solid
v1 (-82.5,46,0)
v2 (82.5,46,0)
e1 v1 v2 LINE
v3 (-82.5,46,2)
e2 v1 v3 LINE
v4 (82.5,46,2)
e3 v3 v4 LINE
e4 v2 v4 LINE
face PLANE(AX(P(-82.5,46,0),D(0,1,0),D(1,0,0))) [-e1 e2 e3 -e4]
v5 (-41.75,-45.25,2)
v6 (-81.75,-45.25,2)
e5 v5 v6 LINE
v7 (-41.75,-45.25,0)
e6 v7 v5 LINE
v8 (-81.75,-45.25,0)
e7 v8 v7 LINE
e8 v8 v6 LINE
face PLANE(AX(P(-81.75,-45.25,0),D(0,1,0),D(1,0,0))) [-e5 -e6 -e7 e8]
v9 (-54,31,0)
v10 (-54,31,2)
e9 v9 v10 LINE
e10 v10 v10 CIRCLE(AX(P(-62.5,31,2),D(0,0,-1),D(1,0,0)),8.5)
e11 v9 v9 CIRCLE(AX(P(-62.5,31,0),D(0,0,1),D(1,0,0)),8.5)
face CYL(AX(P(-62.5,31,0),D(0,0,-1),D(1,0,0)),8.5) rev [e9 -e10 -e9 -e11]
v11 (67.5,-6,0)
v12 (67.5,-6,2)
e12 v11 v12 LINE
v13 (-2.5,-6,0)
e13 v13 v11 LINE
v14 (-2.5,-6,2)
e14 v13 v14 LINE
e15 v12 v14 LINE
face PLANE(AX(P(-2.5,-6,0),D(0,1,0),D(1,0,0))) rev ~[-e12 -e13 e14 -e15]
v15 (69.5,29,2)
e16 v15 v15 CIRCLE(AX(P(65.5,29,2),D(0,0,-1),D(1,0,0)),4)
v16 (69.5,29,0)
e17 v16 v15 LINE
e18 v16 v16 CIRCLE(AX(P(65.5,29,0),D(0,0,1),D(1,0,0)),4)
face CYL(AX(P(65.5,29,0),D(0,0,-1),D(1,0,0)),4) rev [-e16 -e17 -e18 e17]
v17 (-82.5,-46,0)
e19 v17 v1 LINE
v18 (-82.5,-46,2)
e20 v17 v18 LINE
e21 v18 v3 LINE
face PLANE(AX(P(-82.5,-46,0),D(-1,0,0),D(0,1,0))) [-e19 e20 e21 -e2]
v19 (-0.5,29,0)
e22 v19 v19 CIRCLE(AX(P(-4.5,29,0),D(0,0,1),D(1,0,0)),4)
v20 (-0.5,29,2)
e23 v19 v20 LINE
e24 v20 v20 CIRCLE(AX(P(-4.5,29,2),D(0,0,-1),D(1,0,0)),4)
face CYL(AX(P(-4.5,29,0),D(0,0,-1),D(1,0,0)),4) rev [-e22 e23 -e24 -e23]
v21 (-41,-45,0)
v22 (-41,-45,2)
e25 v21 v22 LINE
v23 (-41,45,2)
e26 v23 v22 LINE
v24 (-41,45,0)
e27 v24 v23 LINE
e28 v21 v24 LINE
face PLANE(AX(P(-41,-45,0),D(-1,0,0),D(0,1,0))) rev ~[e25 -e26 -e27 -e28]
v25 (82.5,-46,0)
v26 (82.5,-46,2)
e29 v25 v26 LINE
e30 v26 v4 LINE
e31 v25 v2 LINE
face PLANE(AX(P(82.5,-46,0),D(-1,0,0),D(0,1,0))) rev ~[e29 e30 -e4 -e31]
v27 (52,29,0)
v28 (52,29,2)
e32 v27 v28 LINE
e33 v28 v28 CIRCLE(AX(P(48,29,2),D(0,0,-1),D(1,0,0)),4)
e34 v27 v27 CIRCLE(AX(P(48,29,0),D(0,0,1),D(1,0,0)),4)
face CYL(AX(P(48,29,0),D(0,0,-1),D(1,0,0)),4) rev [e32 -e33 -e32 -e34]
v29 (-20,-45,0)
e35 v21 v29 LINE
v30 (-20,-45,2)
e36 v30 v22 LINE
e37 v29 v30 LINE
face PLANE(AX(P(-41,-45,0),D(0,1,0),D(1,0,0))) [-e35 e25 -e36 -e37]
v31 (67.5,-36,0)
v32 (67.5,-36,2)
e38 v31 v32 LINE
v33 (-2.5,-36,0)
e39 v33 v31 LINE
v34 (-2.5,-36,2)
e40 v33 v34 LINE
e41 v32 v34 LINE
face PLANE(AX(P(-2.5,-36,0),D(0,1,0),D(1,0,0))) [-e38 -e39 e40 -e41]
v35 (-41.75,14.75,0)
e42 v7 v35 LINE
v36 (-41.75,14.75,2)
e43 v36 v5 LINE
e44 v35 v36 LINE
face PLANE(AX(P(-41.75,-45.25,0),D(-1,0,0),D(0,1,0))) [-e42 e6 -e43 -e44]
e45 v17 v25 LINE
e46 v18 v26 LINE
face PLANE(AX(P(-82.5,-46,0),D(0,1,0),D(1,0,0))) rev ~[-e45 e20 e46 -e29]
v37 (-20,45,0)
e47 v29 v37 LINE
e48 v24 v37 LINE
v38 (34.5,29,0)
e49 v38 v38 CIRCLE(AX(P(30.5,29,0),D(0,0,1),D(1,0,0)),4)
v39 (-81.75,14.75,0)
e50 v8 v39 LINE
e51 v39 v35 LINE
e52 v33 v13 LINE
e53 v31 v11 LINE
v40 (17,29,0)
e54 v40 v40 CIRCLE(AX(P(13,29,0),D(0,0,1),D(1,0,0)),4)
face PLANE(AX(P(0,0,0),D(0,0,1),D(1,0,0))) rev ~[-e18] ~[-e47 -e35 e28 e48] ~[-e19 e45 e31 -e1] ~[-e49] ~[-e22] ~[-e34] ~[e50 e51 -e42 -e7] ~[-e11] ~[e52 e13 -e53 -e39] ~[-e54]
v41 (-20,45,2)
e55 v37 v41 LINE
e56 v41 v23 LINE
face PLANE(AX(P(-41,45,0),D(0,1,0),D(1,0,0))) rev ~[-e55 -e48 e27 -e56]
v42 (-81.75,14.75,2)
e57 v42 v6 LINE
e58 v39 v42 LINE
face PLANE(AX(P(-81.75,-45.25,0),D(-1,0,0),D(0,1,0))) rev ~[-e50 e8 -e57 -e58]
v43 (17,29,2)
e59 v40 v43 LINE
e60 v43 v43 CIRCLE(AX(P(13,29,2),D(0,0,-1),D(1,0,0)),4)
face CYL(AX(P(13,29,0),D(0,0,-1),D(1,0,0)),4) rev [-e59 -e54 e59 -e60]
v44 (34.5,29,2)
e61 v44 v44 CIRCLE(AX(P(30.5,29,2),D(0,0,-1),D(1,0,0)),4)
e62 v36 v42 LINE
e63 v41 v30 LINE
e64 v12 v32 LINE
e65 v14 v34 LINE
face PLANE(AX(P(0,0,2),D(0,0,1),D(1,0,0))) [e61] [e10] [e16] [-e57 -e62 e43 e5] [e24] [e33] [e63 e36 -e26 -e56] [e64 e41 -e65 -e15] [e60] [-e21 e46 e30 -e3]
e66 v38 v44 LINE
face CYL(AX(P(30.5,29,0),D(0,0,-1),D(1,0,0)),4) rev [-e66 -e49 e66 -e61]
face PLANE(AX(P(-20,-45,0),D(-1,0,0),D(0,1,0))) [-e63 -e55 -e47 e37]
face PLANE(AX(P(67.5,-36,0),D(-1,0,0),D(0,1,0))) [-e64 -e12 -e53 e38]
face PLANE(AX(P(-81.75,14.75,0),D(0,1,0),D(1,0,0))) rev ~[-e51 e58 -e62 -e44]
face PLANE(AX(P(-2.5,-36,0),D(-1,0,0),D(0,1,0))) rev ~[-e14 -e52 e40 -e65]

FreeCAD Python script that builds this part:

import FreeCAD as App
import Part
import Sketcher
Q = App.Units.Quantity

doc = App.newDocument("Part")
body = doc.addObject("PartDesign::Body", "Body")

sketch1 = body.newObject("Sketcher::SketchObject", "Sketch")
sketch1.AttachmentSupport = (doc.getObject("XY_Plane"), [""])
sketch1.MapMode = "FlatFace"
sketch1.addGeometry(Part.LineSegment(App.Vector(-82, 46, 0), App.Vector(-82, -46, 0)), False)
sketch1.addGeometry(Part.LineSegment(App.Vector(-82, -46, 0), App.Vector(82, -46, 0)), False)
sketch1.addGeometry(Part.LineSegment(App.Vector(82, -46, 0), App.Vector(82, 46, 0)), False)
sketch1.addGeometry(Part.LineSegment(App.Vector(82, 46, 0), App.Vector(-82, 46, 0)), False)
sketch1.addConstraint(Sketcher.Constraint("Coincident", 0, 2, 1, 1))
sketch1.addConstraint(Sketcher.Constraint("Coincident", 1, 2, 2, 1))
sketch1.addConstraint(Sketcher.Constraint("Coincident", 2, 2, 3, 1))
sketch1.addConstraint(Sketcher.Constraint("Coincident", 3, 2, 0, 1))
sketch1.addConstraint(Sketcher.Constraint("Vertical", 0))
sketch1.addConstraint(Sketcher.Constraint("Horizontal", 1))
sketch1.addConstraint(Sketcher.Constraint("Vertical", 2))
sketch1.addConstraint(Sketcher.Constraint("Horizontal", 3))
sketch1.addConstraint(Sketcher.Constraint("Symmetric", 0, 2, 2, 2, -1, 1))
sketch1.addConstraint(Sketcher.Constraint("DistanceX", 1, 1, 1, 2, Q("165 mm")))
sketch1.addConstraint(Sketcher.Constraint("DistanceY", 0, 2, 0, 1, Q("92 mm")))
pad1 = body.newObject("PartDesign::Pad", "Pad")
pad1.Profile = sketch1
pad1.Length = 2

sketch2 = body.newObject("Sketcher::SketchObject", "Sketch001")
sketch2.AttachmentSupport = (doc.getObject("XY_Plane"), [""])
sketch2.MapMode = "FlatFace"
sketch2.addGeometry(Part.LineSegment(App.Vector(-41, 45, 0), App.Vector(-41, -45, 0)), False)
sketch2.addGeometry(Part.LineSegment(App.Vector(-41, -45, 0), App.Vector(-20, -45, 0)), False)
sketch2.addGeometry(Part.LineSegment(App.Vector(-20, -45, 0), App.Vector(-20, 45, 0)), False)
sketch2.addGeometry(Part.LineSegment(App.Vector(-20, 45, 0), App.Vector(-41, 45, 0)), False)
sketch2.addConstraint(Sketcher.Constraint("Coincident", 0, 2, 1, 1))
sketch2.addConstraint(Sketcher.Constraint("Coincident", 1, 2, 2, 1))
sketch2.addConstraint(Sketcher.Constraint("Coincident", 2, 2, 3, 1))
sketch2.addConstraint(Sketcher.Constraint("Coincident", 3, 2, 0, 1))
sketch2.addConstraint(Sketcher.Constraint("Vertical", 0))
sketch2.addConstraint(Sketcher.Constraint("Horizontal", 1))
sketch2.addConstraint(Sketcher.Constraint("Vertical", 2))
sketch2.addConstraint(Sketcher.Constraint("Horizontal", 3))
sketch2.addConstraint(Sketcher.Constraint("DistanceX", 1, 1, 1, 2, Q("21 mm")))
sketch2.addConstraint(Sketcher.Constraint("DistanceY", 0, 2, 0, 1, Q("90 mm")))
sketch2.addConstraint(Sketcher.Constraint("DistanceX", 0, 2, -1, 1, Q("41 mm")))
sketch2.addConstraint(Sketcher.Constraint("DistanceY", 0, 2, -1, 1, Q("45 mm")))
pocket1 = body.newObject("PartDesign::Pocket", "Pocket")
pocket1.Profile = sketch2
pocket1.Length = 5
pocket1.Reversed = True

sketch3 = body.newObject("Sketcher::SketchObject", "Sketch002")
sketch3.AttachmentSupport = (doc.getObject("XY_Plane"), [""])
sketch3.MapMode = "FlatFace"
sketch3.addGeometry(Part.Circle(App.Vector(-4.5, 29, 0), App.Vector(0, 0, 1), 4), False)
sketch3.addGeometry(Part.Circle(App.Vector(13, 29, 0), App.Vector(0, 0, 1), 4), False)
sketch3.addGeometry(Part.Circle(App.Vector(30.5, 29, 0), App.Vector(0, 0, 1), 4), False)
sketch3.addGeometry(Part.Circle(App.Vector(48, 29, 0), App.Vector(0, 0, 1), 4), False)
sketch3.addGeometry(Part.Circle(App.Vector(65.5, 29, 0), App.Vector(0, 0, 1), 4), False)
sketch3.addConstraint(Sketcher.Constraint("Equal", 0, 1))
sketch3.addConstraint(Sketcher.Constraint("Equal", 1, 2))
sketch3.addConstraint(Sketcher.Constraint("Equal", 2, 3))
sketch3.addConstraint(Sketcher.Constraint("Equal", 3, 4))
sketch3.addConstraint(Sketcher.Constraint("Horizontal", 0, 3, 1, 3))
sketch3.addConstraint(Sketcher.Constraint("Horizontal", 1, 3, 2, 3))
sketch3.addConstraint(Sketcher.Constraint("Horizontal", 2, 3, 3, 3))
sketch3.addConstraint(Sketcher.Constraint("Horizontal", 3, 3, 4, 3))
sketch3.addConstraint(Sketcher.Constraint("Diameter", 0, Q("8 mm")))
sketch3.addConstraint(Sketcher.Constraint("DistanceY", -1, 1, 0, 3, Q("29 mm")))
sketch3.addConstraint(Sketcher.Constraint("DistanceX", -1, 1, 1, 3, Q("13 mm")))
sketch3.addConstraint(Sketcher.Constraint("DistanceX", -1, 1, 3, 3, Q("48 mm")))
sketch3.addConstraint(Sketcher.Constraint("DistanceX", 0, 3, 2, 3, Q("35 mm")))
sketch3.addConstraint(Sketcher.Constraint("DistanceX", 2, 3, 4, 3, Q("35 mm")))
sketch3.addConstraint(Sketcher.Constraint("DistanceX", 0, 3, -1, 1, Q("4.5 mm")))
pocket2 = body.newObject("PartDesign::Pocket", "Pocket001")
pocket2.Profile = sketch3
pocket2.Length = 5
pocket2.Reversed = True

sketch4 = body.newObject("Sketcher::SketchObject", "Sketch003")
sketch4.AttachmentSupport = (doc.getObject("XY_Plane"), [""])
sketch4.MapMode = "FlatFace"
sketch4.addGeometry(Part.LineSegment(App.Vector(-82, 15, 0), App.Vector(-82, -45, 0)), False)
sketch4.addGeometry(Part.LineSegment(App.Vector(-82, -45, 0), App.Vector(-42, -45, 0)), False)
sketch4.addGeometry(Part.LineSegment(App.Vector(-42, -45, 0), App.Vector(-42, 15, 0)), False)
sketch4.addGeometry(Part.LineSegment(App.Vector(-42, 15, 0), App.Vector(-82, 15, 0)), False)
sketch4.addConstraint(Sketcher.Constraint("Coincident", 0, 2, 1, 1))
sketch4.addConstraint(Sketcher.Constraint("Coincident", 1, 2, 2, 1))
sketch4.addConstraint(Sketcher.Constraint("Coincident", 2, 2, 3, 1))
sketch4.addConstraint(Sketcher.Constraint("Coincident", 3, 2, 0, 1))
sketch4.addConstraint(Sketcher.Constraint("Vertical", 0))
sketch4.addConstraint(Sketcher.Constraint("Horizontal", 1))
sketch4.addConstraint(Sketcher.Constraint("Vertical", 2))
sketch4.addConstraint(Sketcher.Constraint("Horizontal", 3))
sketch4.addConstraint(Sketcher.Constraint("DistanceX", 1, 1, 1, 2, Q("40 mm")))
sketch4.addConstraint(Sketcher.Constraint("DistanceY", 0, 2, 0, 1, Q("60 mm")))
sketch4.addConstraint(Sketcher.Constraint("DistanceX", 0, 2, -1, 1, Q("81.75 mm")))
sketch4.addConstraint(Sketcher.Constraint("DistanceY", 0, 2, -1, 1, Q("45.25 mm")))
pocket3 = body.newObject("PartDesign::Pocket", "Pocket002")
pocket3.Profile = sketch4
pocket3.Length = 5
pocket3.Reversed = True

sketch5 = body.newObject("Sketcher::SketchObject", "Sketch004")
sketch5.AttachmentSupport = (doc.getObject("XY_Plane"), [""])
sketch5.MapMode = "FlatFace"
sketch5.addGeometry(Part.Circle(App.Vector(-62, 31, 0), App.Vector(0, 0, 1), 8), False)
sketch5.addConstraint(Sketcher.Constraint("Diameter", 0, Q("17 mm")))
sketch5.addConstraint(Sketcher.Constraint("DistanceY", -1, 1, 0, 3, Q("31 mm")))
sketch5.addConstraint(Sketcher.Constraint("DistanceX", 0, 3, -1, 1, Q("62.5 mm")))
pocket4 = body.newObject("PartDesign::Pocket", "Pocket003")
pocket4.Profile = sketch5
pocket4.Length = 5
pocket4.Reversed = True

sketch6 = body.newObject("Sketcher::SketchObject", "Sketch005")
sketch6.AttachmentSupport = (doc.getObject("XY_Plane"), [""])
sketch6.MapMode = "FlatFace"
sketch6.addGeometry(Part.LineSegment(App.Vector(-2, -6, 0), App.Vector(-2, -36, 0)), False)
sketch6.addGeometry(Part.LineSegment(App.Vector(-2, -36, 0), App.Vector(68, -36, 0)), False)
sketch6.addGeometry(Part.LineSegment(App.Vector(68, -36, 0), App.Vector(68, -6, 0)), False)
sketch6.addGeometry(Part.LineSegment(App.Vector(68, -6, 0), App.Vector(-2, -6, 0)), False)
sketch6.addConstraint(Sketcher.Constraint("Coincident", 0, 2, 1, 1))
sketch6.addConstraint(Sketcher.Constraint("Coincident", 1, 2, 2, 1))
sketch6.addConstraint(Sketcher.Constraint("Coincident", 2, 2, 3, 1))
sketch6.addConstraint(Sketcher.Constraint("Coincident", 3, 2, 0, 1))
sketch6.addConstraint(Sketcher.Constraint("Vertical", 0))
sketch6.addConstraint(Sketcher.Constraint("Horizontal", 1))
sketch6.addConstraint(Sketcher.Constraint("Vertical", 2))
sketch6.addConstraint(Sketcher.Constraint("Horizontal", 3))
sketch6.addConstraint(Sketcher.Constraint("DistanceX", 1, 1, 1, 2, Q("70 mm")))
sketch6.addConstraint(Sketcher.Constraint("DistanceY", 0, 2, 0, 1, Q("30 mm")))
sketch6.addConstraint(Sketcher.Constraint("DistanceY", 0, 2, -1, 1, Q("36 mm")))
sketch6.addConstraint(Sketcher.Constraint("DistanceX", 0, 2, -1, 1, Q("2.5 mm")))
pocket5 = body.newObject("PartDesign::Pocket", "Pocket004")
pocket5.Profile = sketch6
pocket5.Length = 5
pocket5.Reversed = True

doc.recompute()
